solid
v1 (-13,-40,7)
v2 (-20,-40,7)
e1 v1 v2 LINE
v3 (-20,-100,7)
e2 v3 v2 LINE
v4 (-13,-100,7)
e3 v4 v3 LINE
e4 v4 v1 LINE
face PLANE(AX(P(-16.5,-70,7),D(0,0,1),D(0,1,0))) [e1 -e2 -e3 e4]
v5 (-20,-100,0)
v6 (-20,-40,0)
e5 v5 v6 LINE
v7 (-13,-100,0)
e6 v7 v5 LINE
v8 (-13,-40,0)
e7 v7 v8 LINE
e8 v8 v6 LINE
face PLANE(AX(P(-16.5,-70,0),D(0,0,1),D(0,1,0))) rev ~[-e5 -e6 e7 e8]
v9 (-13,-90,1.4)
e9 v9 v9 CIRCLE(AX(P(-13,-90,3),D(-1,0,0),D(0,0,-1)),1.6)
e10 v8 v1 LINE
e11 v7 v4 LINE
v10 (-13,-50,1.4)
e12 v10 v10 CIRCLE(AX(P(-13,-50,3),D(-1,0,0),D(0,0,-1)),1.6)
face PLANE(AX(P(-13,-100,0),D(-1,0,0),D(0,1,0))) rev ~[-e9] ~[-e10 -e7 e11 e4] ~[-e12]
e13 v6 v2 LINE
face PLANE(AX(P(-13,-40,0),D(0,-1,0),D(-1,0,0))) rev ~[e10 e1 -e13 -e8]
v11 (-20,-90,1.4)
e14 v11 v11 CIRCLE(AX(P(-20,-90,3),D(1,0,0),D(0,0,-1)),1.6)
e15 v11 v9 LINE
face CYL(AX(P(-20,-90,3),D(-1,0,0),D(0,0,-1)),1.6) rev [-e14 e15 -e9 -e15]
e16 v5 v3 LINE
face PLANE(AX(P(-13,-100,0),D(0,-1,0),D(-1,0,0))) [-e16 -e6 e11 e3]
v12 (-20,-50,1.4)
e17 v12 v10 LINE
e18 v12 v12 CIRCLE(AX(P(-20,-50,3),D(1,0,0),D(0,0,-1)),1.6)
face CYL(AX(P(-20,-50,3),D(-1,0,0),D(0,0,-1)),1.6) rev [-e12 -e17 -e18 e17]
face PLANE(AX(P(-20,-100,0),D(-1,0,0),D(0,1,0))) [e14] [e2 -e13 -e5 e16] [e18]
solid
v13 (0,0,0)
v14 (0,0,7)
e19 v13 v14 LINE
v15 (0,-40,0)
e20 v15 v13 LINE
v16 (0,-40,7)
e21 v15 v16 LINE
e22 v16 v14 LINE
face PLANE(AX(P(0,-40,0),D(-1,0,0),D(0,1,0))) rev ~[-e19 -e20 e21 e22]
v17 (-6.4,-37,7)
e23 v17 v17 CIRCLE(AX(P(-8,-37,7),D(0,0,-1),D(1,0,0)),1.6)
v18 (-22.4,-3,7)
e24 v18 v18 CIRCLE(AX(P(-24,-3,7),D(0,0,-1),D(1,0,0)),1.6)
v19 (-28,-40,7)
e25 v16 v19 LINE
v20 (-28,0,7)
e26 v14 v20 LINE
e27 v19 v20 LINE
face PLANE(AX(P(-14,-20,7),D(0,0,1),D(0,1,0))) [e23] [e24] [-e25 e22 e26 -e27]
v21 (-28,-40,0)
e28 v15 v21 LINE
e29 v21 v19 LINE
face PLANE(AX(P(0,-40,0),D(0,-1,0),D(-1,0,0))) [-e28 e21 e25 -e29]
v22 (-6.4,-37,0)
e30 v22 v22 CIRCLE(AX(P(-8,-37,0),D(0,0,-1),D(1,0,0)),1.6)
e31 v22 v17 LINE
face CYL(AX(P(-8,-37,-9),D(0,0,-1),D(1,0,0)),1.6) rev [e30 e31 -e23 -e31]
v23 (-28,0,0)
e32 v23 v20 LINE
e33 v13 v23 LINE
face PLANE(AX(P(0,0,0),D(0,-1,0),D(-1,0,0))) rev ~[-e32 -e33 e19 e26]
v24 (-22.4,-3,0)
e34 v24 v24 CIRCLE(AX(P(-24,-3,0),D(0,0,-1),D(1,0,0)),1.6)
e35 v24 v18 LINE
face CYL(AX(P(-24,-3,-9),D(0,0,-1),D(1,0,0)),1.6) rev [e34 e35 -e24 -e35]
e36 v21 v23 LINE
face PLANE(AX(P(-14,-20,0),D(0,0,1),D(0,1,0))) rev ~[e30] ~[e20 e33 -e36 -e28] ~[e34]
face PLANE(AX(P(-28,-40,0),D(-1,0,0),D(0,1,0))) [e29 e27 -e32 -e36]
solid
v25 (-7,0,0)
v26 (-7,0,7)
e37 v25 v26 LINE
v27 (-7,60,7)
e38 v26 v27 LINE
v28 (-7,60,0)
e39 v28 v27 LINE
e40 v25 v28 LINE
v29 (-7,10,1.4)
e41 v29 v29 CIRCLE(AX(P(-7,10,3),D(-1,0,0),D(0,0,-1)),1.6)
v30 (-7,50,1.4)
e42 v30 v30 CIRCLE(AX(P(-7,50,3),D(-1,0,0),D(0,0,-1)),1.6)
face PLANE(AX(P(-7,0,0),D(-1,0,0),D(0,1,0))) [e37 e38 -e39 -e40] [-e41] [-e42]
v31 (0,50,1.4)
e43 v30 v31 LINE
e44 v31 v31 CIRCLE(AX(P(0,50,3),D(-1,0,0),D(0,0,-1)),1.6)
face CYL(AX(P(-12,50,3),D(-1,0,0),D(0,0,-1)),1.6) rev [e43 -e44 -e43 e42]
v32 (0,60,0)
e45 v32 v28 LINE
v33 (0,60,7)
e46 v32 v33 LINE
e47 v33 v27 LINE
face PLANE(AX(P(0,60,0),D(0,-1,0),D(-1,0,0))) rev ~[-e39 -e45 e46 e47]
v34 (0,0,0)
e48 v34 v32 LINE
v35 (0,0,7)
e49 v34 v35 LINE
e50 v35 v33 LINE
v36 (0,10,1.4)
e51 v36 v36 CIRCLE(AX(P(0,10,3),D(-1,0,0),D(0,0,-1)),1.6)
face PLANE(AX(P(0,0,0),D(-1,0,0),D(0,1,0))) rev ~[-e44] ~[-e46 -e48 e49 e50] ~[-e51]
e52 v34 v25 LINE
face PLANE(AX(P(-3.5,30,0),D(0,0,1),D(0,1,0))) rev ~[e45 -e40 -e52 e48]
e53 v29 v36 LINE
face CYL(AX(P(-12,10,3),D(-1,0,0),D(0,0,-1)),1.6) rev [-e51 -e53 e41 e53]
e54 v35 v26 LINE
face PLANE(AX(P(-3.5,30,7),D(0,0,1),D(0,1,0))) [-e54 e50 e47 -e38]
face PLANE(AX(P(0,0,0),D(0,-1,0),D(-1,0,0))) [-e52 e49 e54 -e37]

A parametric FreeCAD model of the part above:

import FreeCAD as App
import Part
import Sketcher

V = App.Vector
Q = App.Units.Quantity

doc = App.newDocument("Part")
params = doc.addObject("Spreadsheet::Sheet", "Params")
for row, (alias, value) in enumerate([
    ("sketch1_diameter", "3.2 mm"),
    ("pad1_length", "20 mm"),
    ("sketch2_diameter", "3.2 mm"),
    ("pad2_length", "20 mm"),
    ("sketch3_width", "60 mm"),
    ("sketch3_height", "7 mm"),
    ("pad3_length", "7 mm"),
    ("sketch4_diameter", "3.2 mm"),
    ("pad4_length", "20 mm"),
    ("sketch5_diameter", "3.2 mm"),
    ("pad5_length", "20 mm"),
    ("sketch6_width", "60 mm"),
    ("sketch6_height", "7 mm"),
    ("pad6_length", "7 mm"),
    ("sketch7_diameter", "3.2 mm"),
    ("pad7_length", "20 mm"),
    ("sketch8_diameter", "3.2 mm"),
    ("pad8_length", "20 mm"),
    ("sketch9_width", "40 mm"),
    ("sketch9_height", "28 mm"),
    ("pad9_length", "7 mm"),
], start=1):
    params.set(f"A{row}", alias)
    params.set(f"B{row}", "=" + value)
    params.setAlias(f"B{row}", alias)

body = doc.addObject("PartDesign::Body", "Body")

sketch1 = body.newObject("Sketcher::SketchObject", "Sketch")
sketch1.AttachmentSupport = (doc.getObject("XY_Plane"), [""])
sketch1.MapMode = "FlatFace"
sketch1.addGeometry(Part.Circle(V(0, 0, 0), V(0, 0, 1), 1.6), False)
sketch1.addConstraint([
    Sketcher.Constraint("Coincident", 0, 3, -1, 1),
    Sketcher.Constraint("Diameter", 0, Q("3.2 mm")),
])
sketch1.setExpression("Constraints[1]", "Params.sketch1_diameter")
pad1 = body.newObject("PartDesign::Pad", "Pad")
pad1.Profile = sketch1
pad1.setExpression("Length", "Params.pad1_length")
body2 = doc.addObject("PartDesign::Body", "Body001")
doc.recompute()

body.Placement = App.Placement(V(0, 0, 0), App.Rotation(V(0, 1, 0), 90))
boolean = body2.newObject("PartDesign::Boolean", "Boolean")
boolean.Type = "Fuse"
boolean.addObjects([body])
body3 = doc.addObject("PartDesign::Body", "Body002")
doc.recompute()

body2.Placement = App.Placement(V(-12, 50, 3), App.Rotation(V(0, 0, 1), 0))
boolean2 = body3.newObject("PartDesign::Boolean", "Boolean001")
boolean2.Type = "Fuse"
boolean2.addObjects([body2])
body4 = doc.addObject("PartDesign::Body", "Body003")

sketch2 = body4.newObject("Sketcher::SketchObject", "Sketch001")
sketch2.AttachmentSupport = (doc.getObject("XY_Plane003"), [""])
sketch2.MapMode = "FlatFace"
sketch2.addGeometry(Part.Circle(V(0, 0, 0), V(0, 0, 1), 1.6), False)
sketch2.addConstraint([
    Sketcher.Constraint("Coincident", 0, 3, -1, 1),
    Sketcher.Constraint("Diameter", 0, Q("3.2 mm")),
])
sketch2.setExpression("Constraints[1]", "Params.sketch2_diameter")
pad2 = body4.newObject("PartDesign::Pad", "Pad001")
pad2.Profile = sketch2
pad2.setExpression("Length", "Params.pad2_length")
body5 = doc.addObject("PartDesign::Body", "Body004")
doc.recompute()

body4.Placement = App.Placement(V(0, 0, 0), App.Rotation(V(0, 1, 0), 90))
boolean3 = body5.newObject("PartDesign::Boolean", "Boolean002")
boolean3.Type = "Fuse"
boolean3.addObjects([body4])
body6 = doc.addObject("PartDesign::Body", "Body005")
doc.recompute()

body5.Placement = App.Placement(V(-12, 10, 3), App.Rotation(V(0, 0, 1), 0))
boolean4 = body6.newObject("PartDesign::Boolean", "Boolean003")
boolean4.Type = "Fuse"
boolean4.addObjects([body5])
body7 = doc.addObject("PartDesign::Body", "Body006")

sketch3 = body7.newObject("Sketcher::SketchObject", "Sketch002")
sketch3.AttachmentSupport = (doc.getObject("XY_Plane006"), [""])
sketch3.MapMode = "FlatFace"
sketch3.addGeometry([
    Part.LineSegment(V(0, 7, 0), V(0, 0, 0)),
    Part.LineSegment(V(0, 0, 0), V(60, 0, 0)),
    Part.LineSegment(V(60, 0, 0), V(60, 7, 0)),
    Part.LineSegment(V(60, 7, 0), V(0, 7, 0)),
], False)
sketch3.addConstraint([
    Sketcher.Constraint("Coincident", 0, 2, 1, 1),
    Sketcher.Constraint("Coincident", 1, 2, 2, 1),
    Sketcher.Constraint("Coincident", 2, 2, 3, 1),
    Sketcher.Constraint("Coincident", 3, 2, 0, 1),
    Sketcher.Constraint("Vertical", 0),
    Sketcher.Constraint("Horizontal", 1),
    Sketcher.Constraint("Vertical", 2),
    Sketcher.Constraint("Horizontal", 3),
    Sketcher.Constraint("Coincident", 0, 2, -1, 1),
    Sketcher.Constraint("DistanceX", 1, 1, 1, 2, Q("60 mm")),
    Sketcher.Constraint("DistanceY", 0, 2, 0, 1, Q("7 mm")),
])
sketch3.setExpression("Constraints[9]", "Params.sketch3_width")
sketch3.setExpression("Constraints[10]", "Params.sketch3_height")
pad3 = body7.newObject("PartDesign::Pad", "Pad002")
pad3.Profile = sketch3
pad3.setExpression("Length", "Params.pad3_length")
body8 = doc.addObject("PartDesign::Body", "Body007")
doc.recompute()

body7.Placement = App.Placement(V(0, 0, 0), App.Rotation(V(0, 0, 1), 90))
boolean5 = body8.newObject("PartDesign::Boolean", "Boolean004")
boolean5.Type = "Fuse"
boolean5.addObjects([body7])
doc.recompute()

boolean6 = body8.newObject("PartDesign::Boolean", "Boolean005")
boolean6.Type = "Cut"
boolean6.addObjects([body6])
doc.recompute()

boolean7 = body8.newObject("PartDesign::Boolean", "Boolean006")
boolean7.Type = "Cut"
boolean7.addObjects([body3])
body9 = doc.addObject("PartDesign::Body", "Body008")

sketch4 = body9.newObject("Sketcher::SketchObject", "Sketch003")
sketch4.AttachmentSupport = (doc.getObject("XY_Plane008"), [""])
sketch4.MapMode = "FlatFace"
sketch4.addGeometry(Part.Circle(V(0, 0, 0), V(0, 0, 1), 1.6), False)
sketch4.addConstraint([
    Sketcher.Constraint("Coincident", 0, 3, -1, 1),
    Sketcher.Constraint("Diameter", 0, Q("3.2 mm")),
])
sketch4.setExpression("Constraints[1]", "Params.sketch4_diameter")
pad4 = body9.newObject("PartDesign::Pad", "Pad003")
pad4.Profile = sketch4
pad4.setExpression("Length", "Params.pad4_length")
body10 = doc.addObject("PartDesign::Body", "Body009")
doc.recompute()

body9.Placement = App.Placement(V(0, 0, 0), App.Rotation(V(0, 1, 0), 90))
boolean8 = body10.newObject("PartDesign::Boolean", "Boolean007")
boolean8.Type = "Fuse"
boolean8.addObjects([body9])
body11 = doc.addObject("PartDesign::Body", "Body010")
doc.recompute()

body10.Placement = App.Placement(V(-20, -50, 3), App.Rotation(V(0, 0, 1), 0))
boolean9 = body11.newObject("PartDesign::Boolean", "Boolean008")
boolean9.Type = "Fuse"
boolean9.addObjects([body10])
body12 = doc.addObject("PartDesign::Body", "Body011")

sketch5 = body12.newObject("Sketcher::SketchObject", "Sketch004")
sketch5.AttachmentSupport = (doc.getObject("XY_Plane011"), [""])
sketch5.MapMode = "FlatFace"
sketch5.addGeometry(Part.Circle(V(0, 0, 0), V(0, 0, 1), 1.6), False)
sketch5.addConstraint([
    Sketcher.Constraint("Coincident", 0, 3, -1, 1),
    Sketcher.Constraint("Diameter", 0, Q("3.2 mm")),
])
sketch5.setExpression("Constraints[1]", "Params.sketch5_diameter")
pad5 = body12.newObject("PartDesign::Pad", "Pad004")
pad5.Profile = sketch5
pad5.setExpression("Length", "Params.pad5_length")
body13 = doc.addObject("PartDesign::Body", "Body012")
doc.recompute()

body12.Placement = App.Placement(V(0, 0, 0), App.Rotation(V(0, 1, 0), 90))
boolean10 = body13.newObject("PartDesign::Boolean", "Boolean009")
boolean10.Type = "Fuse"
boolean10.addObjects([body12])
body14 = doc.addObject("PartDesign::Body", "Body013")
doc.recompute()

body13.Placement = App.Placement(V(-20, -90, 3), App.Rotation(V(0, 0, 1), 0))
boolean11 = body14.newObject("PartDesign::Boolean", "Boolean010")
boolean11.Type = "Fuse"
boolean11.addObjects([body13])
body15 = doc.addObject("PartDesign::Body", "Body014")

sketch6 = body15.newObject("Sketcher::SketchObject", "Sketch005")
sketch6.AttachmentSupport = (doc.getObject("XY_Plane014"), [""])
sketch6.MapMode = "FlatFace"
sketch6.addGeometry([
    Part.LineSegment(V(0, 7, 0), V(0, 0, 0)),
    Part.LineSegment(V(0, 0, 0), V(60, 0, 0)),
    Part.LineSegment(V(60, 0, 0), V(60, 7, 0)),
    Part.LineSegment(V(60, 7, 0), V(0, 7, 0)),
], False)
sketch6.addConstraint([
    Sketcher.Constraint("Coincident", 0, 2, 1, 1),
    Sketcher.Constraint("Coincident", 1, 2, 2, 1),
    Sketcher.Constraint("Coincident", 2, 2, 3, 1),
    Sketcher.Constraint("Coincident", 3, 2, 0, 1),
    Sketcher.Constraint("Vertical", 0),
    Sketcher.Constraint("Horizontal", 1),
    Sketcher.Constraint("Vertical", 2),
    Sketcher.Constraint("Horizontal", 3),
    Sketcher.Constraint("Coincident", 0, 2, -1, 1),
    Sketcher.Constraint("DistanceX", 1, 1, 1, 2, Q("60 mm")),
    Sketcher.Constraint("DistanceY", 0, 2, 0, 1, Q("7 mm")),
])
sketch6.setExpression("Constraints[9]", "Params.sketch6_width")
sketch6.setExpression("Constraints[10]", "Params.sketch6_height")
pad6 = body15.newObject("PartDesign::Pad", "Pad005")
pad6.Profile = sketch6
pad6.setExpression("Length", "Params.pad6_length")
body16 = doc.addObject("PartDesign::Body", "Body015")
doc.recompute()

body15.Placement = App.Placement(V(-13, -100, 0), App.Rotation(V(0, 0, 1), 90))
boolean12 = body16.newObject("PartDesign::Boolean", "Boolean011")
boolean12.Type = "Fuse"
boolean12.addObjects([body15])
doc.recompute()

boolean13 = body16.newObject("PartDesign::Boolean", "Boolean012")
boolean13.Type = "Cut"
boolean13.addObjects([body14])
doc.recompute()

boolean14 = body16.newObject("PartDesign::Boolean", "Boolean013")
boolean14.Type = "Cut"
boolean14.addObjects([body11])
body17 = doc.addObject("PartDesign::Body", "Body016")

sketch7 = body17.newObject("Sketcher::SketchObject", "Sketch006")
sketch7.AttachmentSupport = (doc.getObject("XY_Plane016"), [""])
sketch7.MapMode = "FlatFace"
sketch7.AttachmentOffset = App.Placement(V(0, 0, -9), App.Rotation())
sketch7.addGeometry(Part.Circle(V(-24, -3, 0), V(0, 0, 1), 1.6), False)
sketch7.addConstraint([
    Sketcher.Constraint("Diameter", 0, Q("3.2 mm")),
    Sketcher.Constraint("DistanceX", 0, 3, -1, 1, Q("24 mm")),
    Sketcher.Constraint("DistanceY", 0, 3, -1, 1, Q("3 mm")),
])
sketch7.setExpression("Constraints[0]", "Params.sketch7_diameter")
pad7 = body17.newObject("PartDesign::Pad", "Pad006")
pad7.Profile = sketch7
pad7.setExpression("Length", "Params.pad7_length")
body18 = doc.addObject("PartDesign::Body", "Body017")

sketch8 = body18.newObject("Sketcher::SketchObject", "Sketch007")
sketch8.AttachmentSupport = (doc.getObject("XY_Plane017"), [""])
sketch8.MapMode = "FlatFace"
sketch8.AttachmentOffset = App.Placement(V(0, 0, -9), App.Rotation())
sketch8.addGeometry(Part.Circle(V(-8, -37, 0), V(0, 0, 1), 1.6), False)
sketch8.addConstraint([
    Sketcher.Constraint("Diameter", 0, Q("3.2 mm")),
    Sketcher.Constraint("DistanceX", 0, 3, -1, 1, Q("8 mm")),
    Sketcher.Constraint("DistanceY", 0, 3, -1, 1, Q("37 mm")),
])
sketch8.setExpression("Constraints[0]", "Params.sketch8_diameter")
pad8 = body18.newObject("PartDesign::Pad", "Pad007")
pad8.Profile = sketch8
pad8.setExpression("Length", "Params.pad8_length")
body19 = doc.addObject("PartDesign::Body", "Body018")

sketch9 = body19.newObject("Sketcher::SketchObject", "Sketch008")
sketch9.AttachmentSupport = (doc.getObject("XY_Plane018"), [""])
sketch9.MapMode = "FlatFace"
sketch9.addGeometry([
    Part.LineSegment(V(0, 28, 0), V(0, 0, 0)),
    Part.LineSegment(V(0, 0, 0), V(40, 0, 0)),
    Part.LineSegment(V(40, 0, 0), V(40, 28, 0)),
    Part.LineSegment(V(40, 28, 0), V(0, 28, 0)),
], False)
sketch9.addConstraint([
    Sketcher.Constraint("Coincident", 0, 2, 1, 1),
    Sketcher.Constraint("Coincident", 1, 2, 2, 1),
    Sketcher.Constraint("Coincident", 2, 2, 3, 1),
    Sketcher.Constraint("Coincident", 3, 2, 0, 1),
    Sketcher.Constraint("Vertical", 0),
    Sketcher.Constraint("Horizontal", 1),
    Sketcher.Constraint("Vertical", 2),
    Sketcher.Constraint("Horizontal", 3),
    Sketcher.Constraint("Coincident", 0, 2, -1, 1),
    Sketcher.Constraint("DistanceX", 1, 1, 1, 2, Q("40 mm")),
    Sketcher.Constraint("DistanceY", 0, 2, 0, 1, Q("28 mm")),
])
sketch9.setExpression("Constraints[9]", "Params.sketch9_width")
sketch9.setExpression("Constraints[10]", "Params.sketch9_height")
pad9 = body19.newObject("PartDesign::Pad", "Pad008")
pad9.Profile = sketch9
pad9.setExpression("Length", "Params.pad9_length")
body20 = doc.addObject("PartDesign::Body", "Body019")
doc.recompute()

body19.Placement = App.Placement(V(0, -40, 0), App.Rotation(V(0, 0, 1), 90))
boolean15 = body20.newObject("PartDesign::Boolean", "Boolean014")
boolean15.Type = "Fuse"
boolean15.addObjects([body19])
doc.recompute()

boolean16 = body20.newObject("PartDesign::Boolean", "Boolean015")
boolean16.Type = "Cut"
boolean16.addObjects([body18])
doc.recompute()

boolean17 = body20.newObject("PartDesign::Boolean", "Boolean016")
boolean17.Type = "Cut"
boolean17.addObjects([body17])

doc.recompute()
